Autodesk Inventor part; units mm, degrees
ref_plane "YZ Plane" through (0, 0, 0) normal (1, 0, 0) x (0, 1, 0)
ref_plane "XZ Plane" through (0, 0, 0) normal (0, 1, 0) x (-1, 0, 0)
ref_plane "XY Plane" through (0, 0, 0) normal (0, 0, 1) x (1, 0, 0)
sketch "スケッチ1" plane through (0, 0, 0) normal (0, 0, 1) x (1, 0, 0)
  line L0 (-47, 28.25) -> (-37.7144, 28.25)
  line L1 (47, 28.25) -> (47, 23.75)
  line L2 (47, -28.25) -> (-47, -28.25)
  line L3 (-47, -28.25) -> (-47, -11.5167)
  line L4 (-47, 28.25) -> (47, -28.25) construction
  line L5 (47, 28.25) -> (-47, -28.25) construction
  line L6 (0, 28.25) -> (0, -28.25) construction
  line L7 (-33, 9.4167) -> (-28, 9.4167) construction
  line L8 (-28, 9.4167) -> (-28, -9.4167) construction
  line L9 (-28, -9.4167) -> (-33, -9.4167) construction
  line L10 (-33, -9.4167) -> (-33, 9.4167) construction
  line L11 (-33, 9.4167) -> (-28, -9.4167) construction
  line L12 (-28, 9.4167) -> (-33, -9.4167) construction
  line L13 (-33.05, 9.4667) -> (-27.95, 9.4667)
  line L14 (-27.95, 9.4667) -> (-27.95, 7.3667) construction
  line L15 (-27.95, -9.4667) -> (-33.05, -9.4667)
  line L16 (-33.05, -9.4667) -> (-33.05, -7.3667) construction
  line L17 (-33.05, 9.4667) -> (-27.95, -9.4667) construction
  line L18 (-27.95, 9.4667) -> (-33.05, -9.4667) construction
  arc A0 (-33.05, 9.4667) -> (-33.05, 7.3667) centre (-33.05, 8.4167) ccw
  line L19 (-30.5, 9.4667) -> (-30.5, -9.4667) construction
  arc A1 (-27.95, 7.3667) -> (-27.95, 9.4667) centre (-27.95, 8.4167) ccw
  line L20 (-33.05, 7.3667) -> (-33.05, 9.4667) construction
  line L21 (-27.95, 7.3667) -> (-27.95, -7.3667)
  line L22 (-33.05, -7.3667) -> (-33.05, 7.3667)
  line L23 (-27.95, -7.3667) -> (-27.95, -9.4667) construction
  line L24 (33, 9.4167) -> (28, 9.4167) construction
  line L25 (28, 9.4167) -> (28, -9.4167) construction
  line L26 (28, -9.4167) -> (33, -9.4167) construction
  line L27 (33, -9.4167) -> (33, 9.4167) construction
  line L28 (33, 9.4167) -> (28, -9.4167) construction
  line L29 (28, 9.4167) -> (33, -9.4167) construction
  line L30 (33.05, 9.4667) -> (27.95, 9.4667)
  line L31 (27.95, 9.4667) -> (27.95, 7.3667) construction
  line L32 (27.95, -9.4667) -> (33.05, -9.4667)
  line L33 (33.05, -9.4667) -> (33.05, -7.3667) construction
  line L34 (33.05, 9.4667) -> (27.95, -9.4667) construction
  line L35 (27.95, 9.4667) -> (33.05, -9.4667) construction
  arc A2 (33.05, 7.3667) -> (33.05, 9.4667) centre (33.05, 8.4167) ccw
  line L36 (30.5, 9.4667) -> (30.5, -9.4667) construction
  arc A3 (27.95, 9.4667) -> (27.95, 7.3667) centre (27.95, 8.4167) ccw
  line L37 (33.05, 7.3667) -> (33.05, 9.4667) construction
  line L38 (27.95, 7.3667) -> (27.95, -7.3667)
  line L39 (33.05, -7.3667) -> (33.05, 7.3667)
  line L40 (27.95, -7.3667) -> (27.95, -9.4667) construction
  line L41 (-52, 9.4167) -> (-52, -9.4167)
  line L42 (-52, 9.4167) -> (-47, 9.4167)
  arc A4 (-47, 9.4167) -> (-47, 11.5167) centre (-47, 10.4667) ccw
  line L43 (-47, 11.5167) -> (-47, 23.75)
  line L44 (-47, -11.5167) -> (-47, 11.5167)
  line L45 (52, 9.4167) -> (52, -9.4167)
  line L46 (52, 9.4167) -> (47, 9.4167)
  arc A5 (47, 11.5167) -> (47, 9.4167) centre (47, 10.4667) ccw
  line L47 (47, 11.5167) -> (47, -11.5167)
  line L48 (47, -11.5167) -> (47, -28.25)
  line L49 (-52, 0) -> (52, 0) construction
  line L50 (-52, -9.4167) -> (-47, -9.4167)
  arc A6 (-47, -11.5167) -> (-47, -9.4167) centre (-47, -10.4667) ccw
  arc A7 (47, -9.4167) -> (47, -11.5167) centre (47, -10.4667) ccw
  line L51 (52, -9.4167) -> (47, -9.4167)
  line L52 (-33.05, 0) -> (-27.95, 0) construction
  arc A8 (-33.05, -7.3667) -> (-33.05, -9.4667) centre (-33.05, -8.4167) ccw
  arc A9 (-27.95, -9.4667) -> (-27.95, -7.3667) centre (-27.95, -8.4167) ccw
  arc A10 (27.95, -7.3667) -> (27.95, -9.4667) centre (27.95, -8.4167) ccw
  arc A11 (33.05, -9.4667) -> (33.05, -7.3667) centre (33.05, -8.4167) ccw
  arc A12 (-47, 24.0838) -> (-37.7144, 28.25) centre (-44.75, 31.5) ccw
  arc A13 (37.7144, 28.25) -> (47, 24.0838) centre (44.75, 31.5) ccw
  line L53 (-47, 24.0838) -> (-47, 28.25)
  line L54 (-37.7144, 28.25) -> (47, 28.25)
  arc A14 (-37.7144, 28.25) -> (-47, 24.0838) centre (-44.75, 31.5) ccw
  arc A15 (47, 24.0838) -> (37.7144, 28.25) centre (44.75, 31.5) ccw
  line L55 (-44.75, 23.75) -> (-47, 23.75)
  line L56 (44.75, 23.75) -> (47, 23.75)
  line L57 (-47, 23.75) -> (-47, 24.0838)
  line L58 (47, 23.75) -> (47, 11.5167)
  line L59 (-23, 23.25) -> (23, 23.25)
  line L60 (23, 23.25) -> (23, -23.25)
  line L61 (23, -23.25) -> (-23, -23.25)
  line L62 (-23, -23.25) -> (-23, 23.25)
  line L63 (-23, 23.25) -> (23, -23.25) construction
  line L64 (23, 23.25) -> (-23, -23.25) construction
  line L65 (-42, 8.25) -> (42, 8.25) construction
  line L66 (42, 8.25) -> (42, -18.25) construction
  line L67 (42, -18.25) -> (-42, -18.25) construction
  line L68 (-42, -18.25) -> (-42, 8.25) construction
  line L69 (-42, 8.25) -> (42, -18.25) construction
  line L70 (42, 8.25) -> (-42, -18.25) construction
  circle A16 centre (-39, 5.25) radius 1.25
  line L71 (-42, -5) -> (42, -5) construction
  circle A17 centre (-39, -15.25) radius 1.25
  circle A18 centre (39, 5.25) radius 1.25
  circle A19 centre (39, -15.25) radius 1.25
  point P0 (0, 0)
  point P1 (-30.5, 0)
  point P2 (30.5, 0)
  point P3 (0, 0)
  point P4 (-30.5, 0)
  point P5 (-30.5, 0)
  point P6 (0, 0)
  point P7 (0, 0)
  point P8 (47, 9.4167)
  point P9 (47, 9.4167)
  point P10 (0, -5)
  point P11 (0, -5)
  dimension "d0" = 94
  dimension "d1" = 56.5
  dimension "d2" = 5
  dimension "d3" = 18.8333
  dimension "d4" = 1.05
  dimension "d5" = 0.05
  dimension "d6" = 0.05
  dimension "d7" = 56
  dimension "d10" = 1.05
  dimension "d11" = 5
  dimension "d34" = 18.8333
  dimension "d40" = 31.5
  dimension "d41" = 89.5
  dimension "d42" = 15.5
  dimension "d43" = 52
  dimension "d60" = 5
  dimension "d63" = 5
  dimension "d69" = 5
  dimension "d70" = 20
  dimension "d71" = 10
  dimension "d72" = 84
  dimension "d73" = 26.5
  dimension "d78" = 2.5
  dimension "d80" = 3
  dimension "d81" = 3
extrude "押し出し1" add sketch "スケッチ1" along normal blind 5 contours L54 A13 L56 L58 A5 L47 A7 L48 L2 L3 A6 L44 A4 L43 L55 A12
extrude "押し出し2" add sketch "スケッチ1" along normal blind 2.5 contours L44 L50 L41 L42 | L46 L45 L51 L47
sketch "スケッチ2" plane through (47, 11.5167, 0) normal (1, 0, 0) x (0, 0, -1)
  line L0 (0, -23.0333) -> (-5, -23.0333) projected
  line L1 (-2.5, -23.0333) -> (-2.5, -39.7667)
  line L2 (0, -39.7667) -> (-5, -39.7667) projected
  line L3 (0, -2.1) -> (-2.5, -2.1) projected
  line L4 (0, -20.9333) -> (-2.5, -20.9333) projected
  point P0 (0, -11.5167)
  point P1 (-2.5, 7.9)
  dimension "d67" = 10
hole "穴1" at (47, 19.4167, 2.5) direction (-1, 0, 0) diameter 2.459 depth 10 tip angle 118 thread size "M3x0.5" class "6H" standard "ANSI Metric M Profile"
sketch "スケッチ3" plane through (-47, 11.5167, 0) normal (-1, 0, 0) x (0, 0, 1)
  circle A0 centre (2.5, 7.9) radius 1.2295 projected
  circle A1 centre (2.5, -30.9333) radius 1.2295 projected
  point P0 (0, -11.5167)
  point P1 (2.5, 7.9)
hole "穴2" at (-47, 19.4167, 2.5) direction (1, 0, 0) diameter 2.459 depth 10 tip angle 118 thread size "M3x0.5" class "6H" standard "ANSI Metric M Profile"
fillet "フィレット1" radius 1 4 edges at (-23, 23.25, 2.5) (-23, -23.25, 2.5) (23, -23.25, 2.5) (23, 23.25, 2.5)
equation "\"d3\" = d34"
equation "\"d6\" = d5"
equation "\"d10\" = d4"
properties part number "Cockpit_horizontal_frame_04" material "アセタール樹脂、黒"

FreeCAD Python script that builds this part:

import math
import FreeCAD as App
import Part
import Sketcher
Q = App.Units.Quantity


def edges_at(feature, points):
    """Names of the edges that pass closest to the given points."""
    edges = feature.Shape.Edges
    near = lambda p: min(range(len(edges)), key=lambda i: edges[i].distToShape(Part.Vertex(*p))[0])
    return sorted({f"Edge{near(p) + 1}" for p in points})

doc = App.newDocument("Part")
body = doc.addObject("PartDesign::Body", "Body")

# Sketch on XY plane
sketch1 = doc.addObject("Sketcher::SketchObject", "Sketch")
body.addObject(sketch1)
sketch1.AttachmentSupport = (doc.XY_Plane, [""])
sketch1.MapMode = "FlatFace"
sketch1.addGeometry([
    Part.LineSegment(App.Vector(37.7, 28.2, 0), App.Vector(-37.7, 28.2, 0)),  # 0
    Part.ArcOfCircle(Part.Circle(App.Vector(-44.8, 31.5, 0), App.Vector(0, 0, 1), 7.7), math.radians(-90), math.radians(-25)),  # 1
    Part.LineSegment(App.Vector(-44.8, 23.8, 0), App.Vector(-47, 23.8, 0)),  # 2
    Part.LineSegment(App.Vector(-47, 23.8, 0), App.Vector(-47, 11.5, 0)),  # 3
    Part.ArcOfCircle(Part.Circle(App.Vector(-47, 10.5, 0), App.Vector(0, 0, 1), 1), math.radians(-90), math.radians(90)),  # 4
    Part.LineSegment(App.Vector(-47, 9.4, 0), App.Vector(-47, -9.4, 0)),  # 5
    Part.ArcOfCircle(Part.Circle(App.Vector(-47, -10.5, 0), App.Vector(0, 0, 1), 1.1), math.radians(-90), math.radians(90)),  # 6
    Part.LineSegment(App.Vector(-47, -11.5, 0), App.Vector(-47, -28.2, 0)),  # 7
    Part.LineSegment(App.Vector(-47, -28.2, 0), App.Vector(47, -28.2, 0)),  # 8
    Part.LineSegment(App.Vector(47, -28.2, 0), App.Vector(47, -11.5, 0)),  # 9
    Part.ArcOfCircle(Part.Circle(App.Vector(47, -10.5, 0), App.Vector(0, 0, 1), 1), math.radians(90), math.radians(270)),  # 10
    Part.LineSegment(App.Vector(47, -9.4, 0), App.Vector(47, 9.4, 0)),  # 11
    Part.ArcOfCircle(Part.Circle(App.Vector(47, 10.5, 0), App.Vector(0, 0, 1), 1.1), math.radians(90), math.radians(270)),  # 12
    Part.LineSegment(App.Vector(47, 11.5, 0), App.Vector(47, 23.8, 0)),  # 13
    Part.LineSegment(App.Vector(47, 23.8, 0), App.Vector(44.8, 23.8, 0)),  # 14
    Part.ArcOfCircle(Part.Circle(App.Vector(44.8, 31.5, 0), App.Vector(0, 0, 1), 7.8), math.radians(-155), math.radians(-90)),  # 15
    Part.Circle(App.Vector(-39, -15.2, 0), App.Vector(0, 0, 1), 1.2),  # 16
    Part.ArcOfCircle(Part.Circle(App.Vector(-33, 8.4, 0), App.Vector(0, 0, 1), 1), math.radians(90), math.radians(270)),  # 17
    Part.LineSegment(App.Vector(-33, 9.5, 0), App.Vector(-27.9, 9.5, 0)),  # 18
    Part.ArcOfCircle(Part.Circle(App.Vector(-27.9, 8.4, 0), App.Vector(0, 0, 1), 1.1), math.radians(-90), math.radians(90)),  # 19
    Part.LineSegment(App.Vector(-27.9, 7.4, 0), App.Vector(-27.9, -7.4, 0)),  # 20
    Part.ArcOfCircle(Part.Circle(App.Vector(-27.9, -8.4, 0), App.Vector(0, 0, 1), 1), math.radians(-90), math.radians(90)),  # 21
    Part.LineSegment(App.Vector(-27.9, -9.5, 0), App.Vector(-33, -9.5, 0)),  # 22
    Part.ArcOfCircle(Part.Circle(App.Vector(-33, -8.4, 0), App.Vector(0, 0, 1), 1.1), math.radians(90), math.radians(270)),  # 23
    Part.LineSegment(App.Vector(-33, -7.4, 0), App.Vector(-33, 7.4, 0)),  # 24
    Part.Circle(App.Vector(-39, 5.2, 0), App.Vector(0, 0, 1), 1.2),  # 25
    Part.LineSegment(App.Vector(-23, -23.2, 0), App.Vector(-23, 23.2, 0)),  # 26
    Part.LineSegment(App.Vector(-23, 23.2, 0), App.Vector(23, 23.2, 0)),  # 27
    Part.LineSegment(App.Vector(23, 23.2, 0), App.Vector(23, -23.2, 0)),  # 28
    Part.LineSegment(App.Vector(23, -23.2, 0), App.Vector(-23, -23.2, 0)),  # 29
    Part.Circle(App.Vector(39, -15.2, 0), App.Vector(0, 0, 1), 1.2),  # 30
    Part.LineSegment(App.Vector(27.9, 9.5, 0), App.Vector(33, 9.5, 0)),  # 31
    Part.ArcOfCircle(Part.Circle(App.Vector(33, 8.4, 0), App.Vector(0, 0, 1), 1.1), math.radians(-90), math.radians(90)),  # 32
    Part.LineSegment(App.Vector(33, 7.4, 0), App.Vector(33, -7.4, 0)),  # 33
    Part.ArcOfCircle(Part.Circle(App.Vector(33, -8.4, 0), App.Vector(0, 0, 1), 1), math.radians(-90), math.radians(90)),  # 34
    Part.LineSegment(App.Vector(33, -9.5, 0), App.Vector(27.9, -9.5, 0)),  # 35
    Part.ArcOfCircle(Part.Circle(App.Vector(27.9, -8.4, 0), App.Vector(0, 0, 1), 1.1), math.radians(90), math.radians(270)),  # 36
    Part.LineSegment(App.Vector(27.9, -7.4, 0), App.Vector(27.9, 7.4, 0)),  # 37
    Part.ArcOfCircle(Part.Circle(App.Vector(27.9, 8.4, 0), App.Vector(0, 0, 1), 1), math.radians(90), math.radians(270)),  # 38
    Part.Circle(App.Vector(39, 5.2, 0), App.Vector(0, 0, 1), 1.2),  # 39
], False)
sketch1.addConstraint([
    Sketcher.Constraint("Coincident", 0, 2, 1, 2),
    Sketcher.Constraint("Tangent", 1, 1, 2, 1),
    Sketcher.Constraint("Coincident", 2, 2, 3, 1),
    Sketcher.Constraint("Coincident", 3, 2, 4, 2),
    Sketcher.Constraint("Coincident", 4, 1, 5, 1),
    Sketcher.Constraint("Coincident", 5, 2, 6, 2),
    Sketcher.Constraint("Coincident", 6, 1, 7, 1),
    Sketcher.Constraint("Coincident", 7, 2, 8, 1),
    Sketcher.Constraint("Coincident", 8, 2, 9, 1),
    Sketcher.Constraint("Coincident", 9, 2, 10, 2),
    Sketcher.Constraint("Coincident", 10, 1, 11, 1),
    Sketcher.Constraint("Coincident", 11, 2, 12, 2),
    Sketcher.Constraint("Coincident", 12, 1, 13, 1),
    Sketcher.Constraint("Coincident", 13, 2, 14, 1),
    Sketcher.Constraint("Tangent", 14, 2, 15, 2),
    Sketcher.Constraint("Coincident", 15, 1, 0, 1),
    Sketcher.Constraint("Tangent", 17, 1, 18, 1),
    Sketcher.Constraint("Tangent", 18, 2, 19, 2),
    Sketcher.Constraint("Coincident", 19, 1, 20, 1),
    Sketcher.Constraint("Coincident", 20, 2, 21, 2),
    Sketcher.Constraint("Tangent", 21, 1, 22, 1),
    Sketcher.Constraint("Tangent", 22, 2, 23, 2),
    Sketcher.Constraint("Coincident", 23, 1, 24, 1),
    Sketcher.Constraint("Coincident", 24, 2, 17, 2),
    Sketcher.Constraint("Coincident", 26, 2, 27, 1),
    Sketcher.Constraint("Coincident", 27, 2, 28, 1),
    Sketcher.Constraint("Coincident", 28, 2, 29, 1),
    Sketcher.Constraint("Coincident", 29, 2, 26, 1),
    Sketcher.Constraint("Tangent", 31, 2, 32, 2),
    Sketcher.Constraint("Coincident", 32, 1, 33, 1),
    Sketcher.Constraint("Coincident", 33, 2, 34, 2),
    Sketcher.Constraint("Tangent", 34, 1, 35, 1),
    Sketcher.Constraint("Tangent", 35, 2, 36, 2),
    Sketcher.Constraint("Coincident", 36, 1, 37, 1),
    Sketcher.Constraint("Coincident", 37, 2, 38, 2),
    Sketcher.Constraint("Tangent", 38, 1, 31, 1),
    Sketcher.Constraint("Horizontal", 0),
    Sketcher.Constraint("Horizontal", 2),
    Sketcher.Constraint("Vertical", 3),
    Sketcher.Constraint("Vertical", 5),
    Sketcher.Constraint("Vertical", 7),
    Sketcher.Constraint("Horizontal", 8),
    Sketcher.Constraint("Vertical", 9),
    Sketcher.Constraint("Vertical", 11),
    Sketcher.Constraint("Vertical", 13),
    Sketcher.Constraint("Horizontal", 14),
    Sketcher.Constraint("Horizontal", 18),
    Sketcher.Constraint("Vertical", 20),
    Sketcher.Constraint("Horizontal", 22),
    Sketcher.Constraint("Vertical", 24),
    Sketcher.Constraint("Vertical", 26),
    Sketcher.Constraint("Horizontal", 27),
    Sketcher.Constraint("Vertical", 28),
    Sketcher.Constraint("Horizontal", 29),
    Sketcher.Constraint("Horizontal", 31),
    Sketcher.Constraint("Vertical", 33),
    Sketcher.Constraint("Horizontal", 35),
    Sketcher.Constraint("Vertical", 37),
    Sketcher.Constraint("Equal", 4, 6),
    Sketcher.Constraint("Equal", 6, 10),
    Sketcher.Constraint("Equal", 10, 12),
    Sketcher.Constraint("Equal", 1, 15),
    Sketcher.Constraint("Equal", 12, 17),
    Sketcher.Constraint("Equal", 17, 19),
    Sketcher.Constraint("Equal", 19, 21),
    Sketcher.Constraint("Equal", 21, 23),
    Sketcher.Constraint("Equal", 16, 25),
    Sketcher.Constraint("Equal", 25, 30),
    Sketcher.Constraint("Equal", 23, 32),
    Sketcher.Constraint("Equal", 32, 34),
    Sketcher.Constraint("Equal", 34, 36),
    Sketcher.Constraint("Equal", 36, 38),
    Sketcher.Constraint("Equal", 30, 39),
    Sketcher.Constraint("Symmetric", 4, 3, 10, 3, -1, 1),
    Sketcher.Constraint("Symmetric", 6, 3, 12, 3, -1, 1),
    Sketcher.Constraint("Symmetric", 23, 3, 32, 3, -1, 1),
    Sketcher.Constraint("Symmetric", 17, 3, 34, 3, -1, 1),
    Sketcher.Constraint("Symmetric", 26, 2, 28, 2, -1, 1),
    Sketcher.Constraint("Symmetric", 6, 3, 10, 3, -2),
    Sketcher.Constraint("Symmetric", 1, 3, 15, 3, -2),
    Sketcher.Constraint("Symmetric", 16, 3, 30, 3, -2),
    Sketcher.Constraint("Symmetric", 17, 3, 32, 3, -2),
    Sketcher.Constraint("Symmetric", 25, 3, 39, 3, -2),
    Sketcher.Constraint("Vertical", 19, 3, 21, 3),
    Sketcher.Constraint("Vertical", 16, 3, 25, 3),
    Sketcher.Constraint("Vertical", 36, 3, 38, 3),
    Sketcher.Constraint("Vertical", 6, 3, 2, 2),
    Sketcher.Constraint("Vertical", 3, 2, 4, 1),
    Sketcher.Constraint("Vertical", 5, 2, 6, 1),
    Sketcher.Constraint("Vertical", 12, 3, 8, 2),
    Sketcher.Constraint("Vertical", 9, 2, 10, 1),
    Sketcher.Constraint("Vertical", 11, 2, 12, 1),
    Sketcher.Constraint("Vertical", 18, 2, 19, 1),
    Sketcher.Constraint("Vertical", 22, 2, 23, 1),
    Sketcher.Constraint("Vertical", 31, 2, 32, 1),
    Sketcher.Constraint("Vertical", 35, 2, 36, 1),
    Sketcher.Constraint("Equal", 22, 31),
    Sketcher.Constraint("Diameter", 16, Q("2.5 mm")),
    Sketcher.Constraint("DistanceX", 8, 1, 8, 2, Q("94 mm")),
    Sketcher.Constraint("Radius", 1, Q("7.75 mm")),
    Sketcher.Constraint("Radius", 4, Q("1.05 mm")),
    Sketcher.Constraint("DistanceY", 26, 2, 0, 2, Q("5 mm")),
    Sketcher.Constraint("DistanceY", 8, 2, 28, 2, Q("5 mm")),
    Sketcher.Constraint("DistanceY", -1, 1, 1, 3, Q("31.5 mm")),
    Sketcher.Constraint("DistanceX", 1, 3, 15, 3, Q("89.5 mm")),
    Sketcher.Constraint("DistanceX", 27, 1, 27, 2, Q("46 mm")),
    Sketcher.Constraint("DistanceY", 4, 1, 17, 1, Q("0.05 mm")),
    Sketcher.Constraint("DistanceX", 18, 1, 18, 2, Q("5.1 mm")),
    Sketcher.Constraint("DistanceY", 5, 2, 5, 1, Q("18.8334 mm")),
    Sketcher.Constraint("DistanceY", 26, 1, 26, 2, Q("46.5 mm")),
    Sketcher.Constraint("DistanceX", 16, 3, -1, 1, Q("39 mm")),
    Sketcher.Constraint("DistanceX", 19, 3, 32, 3, Q("61 mm")),
    Sketcher.Constraint("DistanceY", 25, 3, 0, 2, Q("23 mm")),
    Sketcher.Constraint("DistanceY", 7, 2, 16, 3, Q("13 mm")),
])
pad1 = doc.addObject("PartDesign::Pad", "Pad")
body.addObject(pad1)
pad1.Profile = sketch1
pad1.Length = 5

# Sketch on XY plane
sketch2 = doc.addObject("Sketcher::SketchObject", "Sketch001")
body.addObject(sketch2)
sketch2.AttachmentSupport = (doc.XY_Plane, [""])
sketch2.MapMode = "FlatFace"
sketch2.addGeometry([
    Part.LineSegment(App.Vector(-47, -9, 0), App.Vector(-47, 9, 0)),  # 0
    Part.LineSegment(App.Vector(-47, 9, 0), App.Vector(-52, 9, 0)),  # 1
    Part.LineSegment(App.Vector(-52, 9, 0), App.Vector(-52, -9, 0)),  # 2
    Part.LineSegment(App.Vector(-52, -9, 0), App.Vector(-47, -9, 0)),  # 3
    Part.LineSegment(App.Vector(52, 9, 0), App.Vector(47, 9, 0)),  # 4
    Part.LineSegment(App.Vector(47, 9, 0), App.Vector(47, -9, 0)),  # 5
    Part.LineSegment(App.Vector(47, -9, 0), App.Vector(52, -9, 0)),  # 6
    Part.LineSegment(App.Vector(52, -9, 0), App.Vector(52, 9, 0)),  # 7
], False)
sketch2.addConstraint([
    Sketcher.Constraint("Coincident", 0, 2, 1, 1),
    Sketcher.Constraint("Coincident", 1, 2, 2, 1),
    Sketcher.Constraint("Coincident", 2, 2, 3, 1),
    Sketcher.Constraint("Coincident", 3, 2, 0, 1),
    Sketcher.Constraint("Coincident", 4, 2, 5, 1),
    Sketcher.Constraint("Coincident", 5, 2, 6, 1),
    Sketcher.Constraint("Coincident", 6, 2, 7, 1),
    Sketcher.Constraint("Coincident", 7, 2, 4, 1),
    Sketcher.Constraint("Vertical", 0),
    Sketcher.Constraint("Horizontal", 1),
    Sketcher.Constraint("Vertical", 2),
    Sketcher.Constraint("Horizontal", 3),
    Sketcher.Constraint("Horizontal", 4),
    Sketcher.Constraint("Vertical", 5),
    Sketcher.Constraint("Horizontal", 6),
    Sketcher.Constraint("Vertical", 7),
    Sketcher.Constraint("Symmetric", 3, 2, 4, 2, -1, 1),
    Sketcher.Constraint("Symmetric", 1, 2, 6, 2, -1, 1),
    Sketcher.Constraint("Horizontal", 1, 2, 4, 2),
    Sketcher.Constraint("DistanceX", 1, 2, 1, 1, Q("5 mm")),
    Sketcher.Constraint("DistanceX", 1, 2, -1, 1, Q("52 mm")),
    Sketcher.Constraint("DistanceY", 0, 1, 0, 2, Q("18.8334 mm")),
])
pad2 = doc.addObject("PartDesign::Pad", "Pad001")
body.addObject(pad2)
pad2.Profile = sketch2
pad2.Length = 2.5

# Sketch on YZ plane
sketch3 = doc.addObject("Sketcher::SketchObject", "Sketch002")
body.addObject(sketch3)
sketch3.AttachmentSupport = (doc.YZ_Plane, [""])
sketch3.MapMode = "FlatFace"
sketch3.AttachmentOffset = App.Placement(App.Vector(0, 0, 47), App.Rotation())
sketch3.addGeometry(Part.Circle(App.Vector(19.4, 2.5, 0), App.Vector(0, 0, 1), 1.2), False)
sketch3.addConstraint([
    Sketcher.Constraint("Diameter", 0, Q("2.459 mm")),
    Sketcher.Constraint("DistanceY", -1, 1, 0, 3, Q("2.5 mm")),
    Sketcher.Constraint("DistanceX", -1, 1, 0, 3, Q("19.4167 mm")),
])
doc.recompute()
hole = doc.addObject("PartDesign::Hole", "Hole")
body.addObject(hole)
hole.Profile = sketch3
hole.ThreadType = "None"
hole.Diameter = 2.459
hole.DepthType = "Dimension"
hole.Depth = 10
hole.DrillPoint = "Angled"
hole.DrillPointAngle = 118

# Sketch on YZ plane
sketch4 = doc.addObject("Sketcher::SketchObject", "Sketch003")
body.addObject(sketch4)
sketch4.AttachmentSupport = (doc.YZ_Plane, [""])
sketch4.MapMode = "FlatFace"
sketch4.AttachmentOffset = App.Placement(App.Vector(0, 0, -47), App.Rotation())
sketch4.addGeometry(Part.Circle(App.Vector(19.4, 2.5, 0), App.Vector(0, 0, 1), 1.2), False)
sketch4.addConstraint([
    Sketcher.Constraint("Diameter", 0, Q("2.459 mm")),
    Sketcher.Constraint("DistanceY", -1, 1, 0, 3, Q("2.5 mm")),
    Sketcher.Constraint("DistanceX", -1, 1, 0, 3, Q("19.4167 mm")),
])
doc.recompute()
hole2 = doc.addObject("PartDesign::Hole", "Hole001")
body.addObject(hole2)
hole2.Profile = sketch4
hole2.ThreadType = "None"
hole2.Diameter = 2.459
hole2.DepthType = "Dimension"
hole2.Depth = 10
hole2.DrillPoint = "Angled"
hole2.DrillPointAngle = 118
hole2.Reversed = True
doc.recompute()

fillet = doc.addObject("PartDesign::Fillet", "Fillet")
body.addObject(fillet)
fillet.Base = (hole2, edges_at(hole2, [
    (-23, 23.25, 2.5),
    (-23, -23.25, 2.5),
    (23, -23.25, 2.5),
    (23, 23.25, 2.5),
]))
fillet.Radius = 1

doc.recompute()
